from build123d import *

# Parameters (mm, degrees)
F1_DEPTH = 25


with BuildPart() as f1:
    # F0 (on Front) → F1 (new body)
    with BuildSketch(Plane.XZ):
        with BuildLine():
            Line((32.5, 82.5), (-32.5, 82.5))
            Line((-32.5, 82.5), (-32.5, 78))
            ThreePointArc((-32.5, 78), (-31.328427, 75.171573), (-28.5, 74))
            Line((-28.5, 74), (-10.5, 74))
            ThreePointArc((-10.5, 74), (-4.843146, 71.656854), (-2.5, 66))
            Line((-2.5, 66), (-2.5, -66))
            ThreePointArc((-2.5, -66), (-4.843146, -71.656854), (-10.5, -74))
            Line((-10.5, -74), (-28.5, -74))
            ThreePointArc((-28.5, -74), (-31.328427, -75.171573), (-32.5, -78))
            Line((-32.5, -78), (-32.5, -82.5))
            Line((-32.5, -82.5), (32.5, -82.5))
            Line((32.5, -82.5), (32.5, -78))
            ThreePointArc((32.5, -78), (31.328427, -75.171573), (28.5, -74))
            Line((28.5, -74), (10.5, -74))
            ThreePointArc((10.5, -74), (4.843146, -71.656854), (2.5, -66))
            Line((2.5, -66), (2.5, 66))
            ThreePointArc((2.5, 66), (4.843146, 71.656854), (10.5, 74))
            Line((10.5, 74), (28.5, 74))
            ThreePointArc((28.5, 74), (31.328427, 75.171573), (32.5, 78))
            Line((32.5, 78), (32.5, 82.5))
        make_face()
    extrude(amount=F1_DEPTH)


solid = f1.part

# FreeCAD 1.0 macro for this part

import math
import FreeCAD as App
import Part
import Sketcher
Q = App.Units.Quantity

doc = App.newDocument("Part")
body = doc.addObject("PartDesign::Body", "Body")

sketch1 = doc.addObject("Sketcher::SketchObject", "Sketch")
body.addObject(sketch1)
sketch1.AttachmentSupport = (doc.XZ_Plane, [""])
sketch1.MapMode = "FlatFace"
sketch1.addGeometry([
    Part.LineSegment(App.Vector(32.5, 82.5, 0), App.Vector(-32.5, 82.5, 0)),
    Part.LineSegment(App.Vector(-32.5, 82.5, 0), App.Vector(-32.5, 78, 0)),
    Part.ArcOfCircle(Part.Circle(App.Vector(-28.5, 78, 0), App.Vector(0, 0, 1), 4), math.radians(-179.999994), math.radians(-90.000006)),
    Part.LineSegment(App.Vector(-28.5, 74, 0), App.Vector(-10.5, 74, 0)),
    Part.ArcOfCircle(Part.Circle(App.Vector(-10.500001, 65.999999, 0), App.Vector(0, 0, 1), 8.000001), math.radians(0.000006), math.radians(89.999994)),
    Part.LineSegment(App.Vector(-2.5, 66, 0), App.Vector(-2.5, -66, 0)),
    Part.ArcOfCircle(Part.Circle(App.Vector(-10.500001, -65.999999, 0), App.Vector(0, 0, 1), 8.000001), math.radians(-89.999994), math.radians(-0.000006)),
    Part.LineSegment(App.Vector(-10.5, -74, 0), App.Vector(-28.5, -74, 0)),
    Part.ArcOfCircle(Part.Circle(App.Vector(-28.5, -78, 0), App.Vector(0, 0, 1), 4), math.radians(90.000006), math.radians(179.999994)),
    Part.LineSegment(App.Vector(-32.5, -78, 0), App.Vector(-32.5, -82.5, 0)),
    Part.LineSegment(App.Vector(-32.5, -82.5, 0), App.Vector(32.5, -82.5, 0)),
    Part.LineSegment(App.Vector(32.5, -82.5, 0), App.Vector(32.5, -78, 0)),
    Part.ArcOfCircle(Part.Circle(App.Vector(28.5, -78, 0), App.Vector(0, 0, 1), 4), math.radians(0.000006), math.radians(89.999994)),
    Part.LineSegment(App.Vector(28.5, -74, 0), App.Vector(10.5, -74, 0)),
    Part.ArcOfCircle(Part.Circle(App.Vector(10.500001, -65.999999, 0), App.Vector(0, 0, 1), 8.000001), math.radians(-179.999994), math.radians(-90.000006)),
    Part.LineSegment(App.Vector(2.5, -66, 0), App.Vector(2.5, 66, 0)),
    Part.ArcOfCircle(Part.Circle(App.Vector(10.500001, 65.999999, 0), App.Vector(0, 0, 1), 8.000001), math.radians(90.000006), math.radians(179.999994)),
    Part.LineSegment(App.Vector(10.5, 74, 0), App.Vector(28.5, 74, 0)),
    Part.ArcOfCircle(Part.Circle(App.Vector(28.5, 78, 0), App.Vector(0, 0, 1), 4), math.radians(-89.999994), math.radians(-0.000006)),
    Part.LineSegment(App.Vector(32.5, 78, 0), App.Vector(32.5, 82.5, 0)),
], False)
sketch1.addConstraint([
    Sketcher.Constraint("Coincident", 0, 2, 1, 1),
    Sketcher.Constraint("Tangent", 1, 2, 2, 1),
    Sketcher.Constraint("Tangent", 2, 2, 3, 1),
    Sketcher.Constraint("Tangent", 3, 2, 4, 2),
    Sketcher.Constraint("Tangent", 4, 1, 5, 1),
    Sketcher.Constraint("Tangent", 5, 2, 6, 2),
    Sketcher.Constraint("Tangent", 6, 1, 7, 1),
    Sketcher.Constraint("Tangent", 7, 2, 8, 1),
    Sketcher.Constraint("Tangent", 8, 2, 9, 1),
    Sketcher.Constraint("Coincident", 9, 2, 10, 1),
    Sketcher.Constraint("Coincident", 10, 2, 11, 1),
    Sketcher.Constraint("Tangent", 11, 2, 12, 1),
    Sketcher.Constraint("Tangent", 12, 2, 13, 1),
    Sketcher.Constraint("Tangent", 13, 2, 14, 2),
    Sketcher.Constraint("Tangent", 14, 1, 15, 1),
    Sketcher.Constraint("Tangent", 15, 2, 16, 2),
    Sketcher.Constraint("Tangent", 16, 1, 17, 1),
    Sketcher.Constraint("Tangent", 17, 2, 18, 1),
    Sketcher.Constraint("Tangent", 18, 2, 19, 1),
    Sketcher.Constraint("Coincident", 19, 2, 0, 1),
    Sketcher.Constraint("Horizontal", 0),
    Sketcher.Constraint("Vertical", 1),
    Sketcher.Constraint("Horizontal", 3),
    Sketcher.Constraint("Vertical", 5),
    Sketcher.Constraint("Horizontal", 7),
    Sketcher.Constraint("Vertical", 9),
    Sketcher.Constraint("Horizontal", 10),
    Sketcher.Constraint("Vertical", 11),
    Sketcher.Constraint("Horizontal", 13),
    Sketcher.Constraint("Vertical", 15),
    Sketcher.Constraint("Horizontal", 17),
    Sketcher.Constraint("Vertical", 19),
    Sketcher.Constraint("Equal", 4, 6),
    Sketcher.Constraint("Equal", 2, 8),
    Sketcher.Constraint("Equal", 8, 12),
    Sketcher.Constraint("Equal", 6, 14),
    Sketcher.Constraint("Equal", 14, 16),
    Sketcher.Constraint("Equal", 12, 18),
    Sketcher.Constraint("Symmetric", 2, 3, 12, 3, -1, 1),
    Sketcher.Constraint("Symmetric", 6, 3, 16, 3, -1, 1),
    Sketcher.Constraint("Symmetric", 9, 2, 19, 2, -1, 1),
    Sketcher.Constraint("Symmetric", 8, 3, 12, 3, -2),
    Sketcher.Constraint("Radius", 2, Q("4 mm")),
    Sketcher.Constraint("Radius", 4, Q("8.000001 mm")),
    Sketcher.Constraint("DistanceX", 0, 2, 0, 1, Q("65 mm")),
    Sketcher.Constraint("DistanceX", 3, 1, 3, 2, Q("18 mm")),
    Sketcher.Constraint("DistanceY", 5, 2, 5, 1, Q("132 mm")),
    Sketcher.Constraint("DistanceY", 1, 2, 1, 1, Q("4.5 mm")),
])
pad1 = doc.addObject("PartDesign::Pad", "Pad")
body.addObject(pad1)
pad1.Profile = sketch1
pad1.Length = 25

doc.recompute()
